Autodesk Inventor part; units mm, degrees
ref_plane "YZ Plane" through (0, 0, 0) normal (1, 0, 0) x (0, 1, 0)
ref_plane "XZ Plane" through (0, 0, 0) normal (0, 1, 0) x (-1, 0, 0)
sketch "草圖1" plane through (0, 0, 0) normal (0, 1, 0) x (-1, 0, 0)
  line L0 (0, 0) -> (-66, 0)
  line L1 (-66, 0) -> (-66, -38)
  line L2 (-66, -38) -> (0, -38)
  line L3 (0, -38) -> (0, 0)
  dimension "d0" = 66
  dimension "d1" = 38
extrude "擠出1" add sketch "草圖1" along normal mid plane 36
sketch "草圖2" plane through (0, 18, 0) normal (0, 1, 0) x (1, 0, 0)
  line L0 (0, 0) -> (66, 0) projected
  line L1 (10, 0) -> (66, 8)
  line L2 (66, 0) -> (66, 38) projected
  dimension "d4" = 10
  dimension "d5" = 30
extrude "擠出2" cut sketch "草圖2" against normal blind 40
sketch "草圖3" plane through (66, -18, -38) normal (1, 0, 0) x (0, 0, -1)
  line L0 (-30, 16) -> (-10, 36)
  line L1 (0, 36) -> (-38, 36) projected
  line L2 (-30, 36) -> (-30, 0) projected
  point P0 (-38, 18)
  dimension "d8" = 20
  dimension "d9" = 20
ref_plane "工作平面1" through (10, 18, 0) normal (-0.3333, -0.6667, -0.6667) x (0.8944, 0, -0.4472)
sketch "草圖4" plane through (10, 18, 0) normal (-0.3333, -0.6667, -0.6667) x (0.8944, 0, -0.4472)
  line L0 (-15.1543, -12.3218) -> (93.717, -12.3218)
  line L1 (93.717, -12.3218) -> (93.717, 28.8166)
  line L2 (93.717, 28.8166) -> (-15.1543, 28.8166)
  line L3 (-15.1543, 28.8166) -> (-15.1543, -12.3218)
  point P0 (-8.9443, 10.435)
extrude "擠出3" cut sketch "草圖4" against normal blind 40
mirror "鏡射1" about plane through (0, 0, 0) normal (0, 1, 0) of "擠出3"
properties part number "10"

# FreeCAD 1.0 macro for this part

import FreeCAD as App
import Part
import Sketcher
Q = App.Units.Quantity

doc = App.newDocument("Part")
params = doc.addObject("Spreadsheet::Sheet", "Params")
for row, (alias, value) in enumerate([
    ("sketch1_width", "66 mm"),
    ("sketch1_height", "38 mm"),
    ("pad1_length", "36 mm"),
    ("sketch2_width", "56 mm"),
    ("sketch2_height", "8 mm"),
    ("pocket1_length", "40 mm"),
    ("pocket2_length", "40 mm"),
], start=1):
    params.set(f"A{row}", alias)
    params.set(f"B{row}", "=" + value)
    params.setAlias(f"B{row}", alias)

body = doc.addObject("PartDesign::Body", "Body")

# Sketch on XZ plane
sketch1 = body.newObject("Sketcher::SketchObject", "Sketch")
sketch1.AttachmentSupport = (doc.getObject("XZ_Plane"), [""])
sketch1.MapMode = "FlatFace"
sketch1.addGeometry(Part.LineSegment(App.Vector(0, -38, 0), App.Vector(0, 0, 0)), False)
sketch1.addGeometry(Part.LineSegment(App.Vector(0, 0, 0), App.Vector(66, 0, 0)), False)
sketch1.addGeometry(Part.LineSegment(App.Vector(66, 0, 0), App.Vector(66, -38, 0)), False)
sketch1.addGeometry(Part.LineSegment(App.Vector(66, -38, 0), App.Vector(0, -38, 0)), False)
sketch1.addConstraint(Sketcher.Constraint("Coincident", 0, 2, 1, 1))
sketch1.addConstraint(Sketcher.Constraint("Coincident", 1, 2, 2, 1))
sketch1.addConstraint(Sketcher.Constraint("Coincident", 2, 2, 3, 1))
sketch1.addConstraint(Sketcher.Constraint("Coincident", 3, 2, 0, 1))
sketch1.addConstraint(Sketcher.Constraint("Vertical", 0))
sketch1.addConstraint(Sketcher.Constraint("Horizontal", 1))
sketch1.addConstraint(Sketcher.Constraint("Vertical", 2))
sketch1.addConstraint(Sketcher.Constraint("Horizontal", 3))
sketch1.addConstraint(Sketcher.Constraint("Coincident", 0, 2, -1, 1))
sketch1.addConstraint(Sketcher.Constraint("DistanceX", 1, 1, 1, 2, Q("66 mm")))
sketch1.addConstraint(Sketcher.Constraint("DistanceY", 0, 1, 0, 2, Q("38 mm")))
sketch1.setExpression("Constraints[9]", "Params.sketch1_width")
sketch1.setExpression("Constraints[10]", "Params.sketch1_height")
pad1 = body.newObject("PartDesign::Pad", "Pad")
pad1.Profile = sketch1
pad1.setExpression("Length", "Params.pad1_length")
pad1.Midplane = True

# Sketch on XZ plane
sketch2 = body.newObject("Sketcher::SketchObject", "Sketch001")
sketch2.AttachmentSupport = (doc.getObject("XZ_Plane"), [""])
sketch2.MapMode = "FlatFace"
sketch2.AttachmentOffset = App.Placement(App.Vector(0, 0, -18), App.Rotation())
sketch2.addGeometry(Part.LineSegment(App.Vector(66, -8, 0), App.Vector(10, 0, 0)), False)
sketch2.addGeometry(Part.LineSegment(App.Vector(10, 0, 0), App.Vector(66, 0, 0)), False)
sketch2.addGeometry(Part.LineSegment(App.Vector(66, 0, 0), App.Vector(66, -8, 0)), False)
sketch2.addConstraint(Sketcher.Constraint("Coincident", 0, 2, 1, 1))
sketch2.addConstraint(Sketcher.Constraint("Coincident", 1, 2, 2, 1))
sketch2.addConstraint(Sketcher.Constraint("Coincident", 2, 2, 0, 1))
sketch2.addConstraint(Sketcher.Constraint("Horizontal", 1))
sketch2.addConstraint(Sketcher.Constraint("Vertical", 2))
sketch2.addConstraint(Sketcher.Constraint("PointOnObject", 0, 2, -1))
sketch2.addConstraint(Sketcher.Constraint("DistanceX", -1, 1, 0, 2, Q("10 mm")))
sketch2.addConstraint(Sketcher.Constraint("DistanceX", 1, 1, 1, 2, Q("56 mm")))
sketch2.addConstraint(Sketcher.Constraint("DistanceY", 2, 2, 2, 1, Q("8 mm")))
sketch2.setExpression("Constraints[7]", "Params.sketch2_width")
sketch2.setExpression("Constraints[8]", "Params.sketch2_height")
pocket1 = body.newObject("PartDesign::Pocket", "Pocket")
pocket1.Profile = sketch2
pocket1.setExpression("Length", "Params.pocket1_length")
pocket1.Reversed = True

# Sketch on an angled plane
sketch3 = body.newObject("Sketcher::SketchObject", "Sketch002")
sketch3.Placement = App.Placement(App.Vector(10, 18, 0), App.Rotation(App.Vector(0.894442097, 0.000029814, -0.447183782), App.Vector(0.298147366, -0.745346055, 0.596294732), App.Vector(-0.33328889, -0.666677777, -0.666677777), "ZXY"))
sketch3.addGeometry(Part.LineSegment(App.Vector(-15, 29, 0), App.Vector(-15, -12, 0)), False)
sketch3.addGeometry(Part.LineSegment(App.Vector(-15, -12, 0), App.Vector(94, -12, 0)), False)
sketch3.addGeometry(Part.LineSegment(App.Vector(94, -12, 0), App.Vector(94, 29, 0)), False)
sketch3.addGeometry(Part.LineSegment(App.Vector(94, 29, 0), App.Vector(-15, 29, 0)), False)
sketch3.addConstraint(Sketcher.Constraint("Coincident", 0, 2, 1, 1))
sketch3.addConstraint(Sketcher.Constraint("Coincident", 1, 2, 2, 1))
sketch3.addConstraint(Sketcher.Constraint("Coincident", 2, 2, 3, 1))
sketch3.addConstraint(Sketcher.Constraint("Coincident", 3, 2, 0, 1))
sketch3.addConstraint(Sketcher.Constraint("Vertical", 0))
sketch3.addConstraint(Sketcher.Constraint("Horizontal", 1))
sketch3.addConstraint(Sketcher.Constraint("Vertical", 2))
sketch3.addConstraint(Sketcher.Constraint("Horizontal", 3))
sketch3.addConstraint(Sketcher.Constraint("DistanceX", 1, 1, 1, 2, Q("108.8713 mm")))
sketch3.addConstraint(Sketcher.Constraint("DistanceY", 0, 2, 0, 1, Q("41.1384 mm")))
sketch3.addConstraint(Sketcher.Constraint("DistanceX", -1, 1, 1, 2, Q("93.717 mm")))
sketch3.addConstraint(Sketcher.Constraint("DistanceY", 0, 2, -1, 1, Q("12.3218 mm")))
pocket2 = body.newObject("PartDesign::Pocket", "Pocket001")
pocket2.Profile = sketch3
pocket2.setExpression("Length", "Params.pocket2_length")
doc.recompute()

mirrored = body.newObject("PartDesign::Mirrored", "Mirrored")
mirrored.Originals = [pocket2]
mirrored.MirrorPlane = (doc.getObject("XZ_Plane"), [""])
body.Tip = mirrored

doc.recompute()
